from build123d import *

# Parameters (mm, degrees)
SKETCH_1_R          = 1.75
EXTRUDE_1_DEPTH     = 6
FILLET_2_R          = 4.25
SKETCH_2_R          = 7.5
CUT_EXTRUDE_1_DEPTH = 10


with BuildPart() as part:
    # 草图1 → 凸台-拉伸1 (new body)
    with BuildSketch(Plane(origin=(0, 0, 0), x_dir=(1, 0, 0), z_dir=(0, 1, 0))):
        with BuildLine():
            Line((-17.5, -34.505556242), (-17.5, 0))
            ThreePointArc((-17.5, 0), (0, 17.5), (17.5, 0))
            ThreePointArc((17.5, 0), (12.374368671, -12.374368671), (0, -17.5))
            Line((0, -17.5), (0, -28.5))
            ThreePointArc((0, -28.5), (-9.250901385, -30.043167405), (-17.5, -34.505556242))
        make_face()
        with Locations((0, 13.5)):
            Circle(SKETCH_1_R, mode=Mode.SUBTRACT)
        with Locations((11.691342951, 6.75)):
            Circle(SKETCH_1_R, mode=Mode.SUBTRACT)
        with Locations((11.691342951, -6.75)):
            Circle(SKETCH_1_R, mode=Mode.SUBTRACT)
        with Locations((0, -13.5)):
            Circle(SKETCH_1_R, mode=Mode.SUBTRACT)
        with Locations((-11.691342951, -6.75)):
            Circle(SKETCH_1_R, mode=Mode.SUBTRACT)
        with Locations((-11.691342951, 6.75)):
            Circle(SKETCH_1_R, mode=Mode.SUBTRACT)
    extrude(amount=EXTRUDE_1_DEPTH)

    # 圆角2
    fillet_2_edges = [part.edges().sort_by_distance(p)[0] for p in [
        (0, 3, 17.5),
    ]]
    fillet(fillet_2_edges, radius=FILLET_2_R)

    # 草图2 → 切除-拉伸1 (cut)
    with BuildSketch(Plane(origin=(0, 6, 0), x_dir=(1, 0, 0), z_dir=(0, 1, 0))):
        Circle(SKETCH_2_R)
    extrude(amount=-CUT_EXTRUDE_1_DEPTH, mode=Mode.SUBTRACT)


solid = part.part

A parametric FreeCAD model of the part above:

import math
import FreeCAD as App
import Part
import Sketcher
Q = App.Units.Quantity


def edges_at(feature, points):
    """Names of the edges that pass closest to the given points."""
    edges = feature.Shape.Edges
    near = lambda p: min(range(len(edges)), key=lambda i: edges[i].distToShape(Part.Vertex(*p))[0])
    return sorted({f"Edge{near(p) + 1}" for p in points})

doc = App.newDocument("Part")
body = doc.addObject("PartDesign::Body", "Body")

# Sketch on XZ plane
sketch1 = doc.addObject("Sketcher::SketchObject", "Sketch")
body.addObject(sketch1)
sketch1.AttachmentSupport = (doc.XZ_Plane, [""])
sketch1.MapMode = "FlatFace"
sketch1.addGeometry([
    Part.LineSegment(App.Vector(-17.5, 0, 0), App.Vector(-17.5, 34.505556, 0)),  # 0
    Part.ArcOfCircle(Part.Circle(App.Vector(0, 57, 0), App.Vector(0, 0, 1), 28.5), math.radians(-127.881841), math.radians(-90)),  # 1
    Part.LineSegment(App.Vector(0, 28.5, 0), App.Vector(0, 17.5, 0)),  # 2
    Part.ArcOfCircle(Part.Circle(App.Vector(0, 0, 0), App.Vector(0, 0, 1), 17.5), math.radians(0), math.radians(90)),  # 3
    Part.ArcOfCircle(Part.Circle(App.Vector(0, 0, 0), App.Vector(0, 0, 1), 17.5), math.radians(180), math.radians(360)),  # 4
    Part.Circle(App.Vector(11.691343, 6.75, 0), App.Vector(0, 0, 1), 1.75),  # 5
    Part.Circle(App.Vector(0, 13.5, 0), App.Vector(0, 0, 1), 1.75),  # 6
    Part.Circle(App.Vector(-11.691343, 6.75, 0), App.Vector(0, 0, 1), 1.75),  # 7
    Part.Circle(App.Vector(11.691343, -6.75, 0), App.Vector(0, 0, 1), 1.75),  # 8
    Part.Circle(App.Vector(-11.691343, -6.75, 0), App.Vector(0, 0, 1), 1.75),  # 9
    Part.Circle(App.Vector(0, -13.5, 0), App.Vector(0, 0, 1), 1.75),  # 10
], False)
sketch1.addConstraint([
    Sketcher.Constraint("Coincident", 0, 2, 1, 1),
    Sketcher.Constraint("Coincident", 1, 2, 2, 1),
    Sketcher.Constraint("Coincident", 2, 2, 3, 2),
    Sketcher.Constraint("Tangent", 3, 1, 4, 2),
    Sketcher.Constraint("Tangent", 4, 1, 0, 1),
    Sketcher.Constraint("Vertical", 0),
    Sketcher.Constraint("Vertical", 2),
    Sketcher.Constraint("Coincident", 3, 3, -1, 1),
    Sketcher.Constraint("Equal", 3, 4),
    Sketcher.Constraint("Equal", 5, 6),
    Sketcher.Constraint("Equal", 6, 7),
    Sketcher.Constraint("Equal", 7, 8),
    Sketcher.Constraint("Equal", 8, 9),
    Sketcher.Constraint("Equal", 9, 10),
    Sketcher.Constraint("Symmetric", 7, 3, 8, 3, -1, 1),
    Sketcher.Constraint("Symmetric", 5, 3, 9, 3, -1, 1),
    Sketcher.Constraint("Symmetric", 6, 3, 10, 3, -1, 1),
    Sketcher.Constraint("Symmetric", 5, 3, 7, 3, -2),
    Sketcher.Constraint("PointOnObject", 1, 3, -2),
    Sketcher.Constraint("PointOnObject", 6, 3, -2),
    Sketcher.Constraint("PointOnObject", 1, 2, -2),
    Sketcher.Constraint("PointOnObject", 3, 1, -1),
    Sketcher.Constraint("Diameter", 5, Q("3.5 mm")),
    Sketcher.Constraint("Radius", 1, Q("28.5 mm")),
    Sketcher.Constraint("Radius", 3, Q("17.5 mm")),
    Sketcher.Constraint("DistanceY", 2, 2, 2, 1, Q("11 mm")),
    Sketcher.Constraint("DistanceY", 6, 3, 1, 2, Q("15 mm")),
    Sketcher.Constraint("DistanceY", 8, 3, 5, 3, Q("13.5 mm")),
    Sketcher.Constraint("DistanceX", -1, 1, 5, 3, Q("11.691343 mm")),
])
pad1 = doc.addObject("PartDesign::Pad", "Pad")
body.addObject(pad1)
pad1.Profile = sketch1
pad1.Length = 6
pad1.Reversed = True
doc.recompute()

fillet = doc.addObject("PartDesign::Fillet", "Fillet")
body.addObject(fillet)
fillet.Base = (pad1, edges_at(pad1, [(0, 3, 17.5)]))
fillet.Radius = 4.25

# Sketch on XZ plane
sketch2 = doc.addObject("Sketcher::SketchObject", "Sketch001")
body.addObject(sketch2)
sketch2.AttachmentSupport = (doc.XZ_Plane, [""])
sketch2.MapMode = "FlatFace"
sketch2.AttachmentOffset = App.Placement(App.Vector(0, 0, -6), App.Rotation())
sketch2.addGeometry(Part.Circle(App.Vector(0, 0, 0), App.Vector(0, 0, 1), 7.5), False)
sketch2.addConstraint([
    Sketcher.Constraint("Coincident", 0, 3, -1, 1),
    Sketcher.Constraint("Diameter", 0, Q("15 mm")),
])
pocket1 = doc.addObject("PartDesign::Pocket", "Pocket")
body.addObject(pocket1)
pocket1.Profile = sketch2
pocket1.Length = 10
pocket1.Reversed = True

doc.recompute()
